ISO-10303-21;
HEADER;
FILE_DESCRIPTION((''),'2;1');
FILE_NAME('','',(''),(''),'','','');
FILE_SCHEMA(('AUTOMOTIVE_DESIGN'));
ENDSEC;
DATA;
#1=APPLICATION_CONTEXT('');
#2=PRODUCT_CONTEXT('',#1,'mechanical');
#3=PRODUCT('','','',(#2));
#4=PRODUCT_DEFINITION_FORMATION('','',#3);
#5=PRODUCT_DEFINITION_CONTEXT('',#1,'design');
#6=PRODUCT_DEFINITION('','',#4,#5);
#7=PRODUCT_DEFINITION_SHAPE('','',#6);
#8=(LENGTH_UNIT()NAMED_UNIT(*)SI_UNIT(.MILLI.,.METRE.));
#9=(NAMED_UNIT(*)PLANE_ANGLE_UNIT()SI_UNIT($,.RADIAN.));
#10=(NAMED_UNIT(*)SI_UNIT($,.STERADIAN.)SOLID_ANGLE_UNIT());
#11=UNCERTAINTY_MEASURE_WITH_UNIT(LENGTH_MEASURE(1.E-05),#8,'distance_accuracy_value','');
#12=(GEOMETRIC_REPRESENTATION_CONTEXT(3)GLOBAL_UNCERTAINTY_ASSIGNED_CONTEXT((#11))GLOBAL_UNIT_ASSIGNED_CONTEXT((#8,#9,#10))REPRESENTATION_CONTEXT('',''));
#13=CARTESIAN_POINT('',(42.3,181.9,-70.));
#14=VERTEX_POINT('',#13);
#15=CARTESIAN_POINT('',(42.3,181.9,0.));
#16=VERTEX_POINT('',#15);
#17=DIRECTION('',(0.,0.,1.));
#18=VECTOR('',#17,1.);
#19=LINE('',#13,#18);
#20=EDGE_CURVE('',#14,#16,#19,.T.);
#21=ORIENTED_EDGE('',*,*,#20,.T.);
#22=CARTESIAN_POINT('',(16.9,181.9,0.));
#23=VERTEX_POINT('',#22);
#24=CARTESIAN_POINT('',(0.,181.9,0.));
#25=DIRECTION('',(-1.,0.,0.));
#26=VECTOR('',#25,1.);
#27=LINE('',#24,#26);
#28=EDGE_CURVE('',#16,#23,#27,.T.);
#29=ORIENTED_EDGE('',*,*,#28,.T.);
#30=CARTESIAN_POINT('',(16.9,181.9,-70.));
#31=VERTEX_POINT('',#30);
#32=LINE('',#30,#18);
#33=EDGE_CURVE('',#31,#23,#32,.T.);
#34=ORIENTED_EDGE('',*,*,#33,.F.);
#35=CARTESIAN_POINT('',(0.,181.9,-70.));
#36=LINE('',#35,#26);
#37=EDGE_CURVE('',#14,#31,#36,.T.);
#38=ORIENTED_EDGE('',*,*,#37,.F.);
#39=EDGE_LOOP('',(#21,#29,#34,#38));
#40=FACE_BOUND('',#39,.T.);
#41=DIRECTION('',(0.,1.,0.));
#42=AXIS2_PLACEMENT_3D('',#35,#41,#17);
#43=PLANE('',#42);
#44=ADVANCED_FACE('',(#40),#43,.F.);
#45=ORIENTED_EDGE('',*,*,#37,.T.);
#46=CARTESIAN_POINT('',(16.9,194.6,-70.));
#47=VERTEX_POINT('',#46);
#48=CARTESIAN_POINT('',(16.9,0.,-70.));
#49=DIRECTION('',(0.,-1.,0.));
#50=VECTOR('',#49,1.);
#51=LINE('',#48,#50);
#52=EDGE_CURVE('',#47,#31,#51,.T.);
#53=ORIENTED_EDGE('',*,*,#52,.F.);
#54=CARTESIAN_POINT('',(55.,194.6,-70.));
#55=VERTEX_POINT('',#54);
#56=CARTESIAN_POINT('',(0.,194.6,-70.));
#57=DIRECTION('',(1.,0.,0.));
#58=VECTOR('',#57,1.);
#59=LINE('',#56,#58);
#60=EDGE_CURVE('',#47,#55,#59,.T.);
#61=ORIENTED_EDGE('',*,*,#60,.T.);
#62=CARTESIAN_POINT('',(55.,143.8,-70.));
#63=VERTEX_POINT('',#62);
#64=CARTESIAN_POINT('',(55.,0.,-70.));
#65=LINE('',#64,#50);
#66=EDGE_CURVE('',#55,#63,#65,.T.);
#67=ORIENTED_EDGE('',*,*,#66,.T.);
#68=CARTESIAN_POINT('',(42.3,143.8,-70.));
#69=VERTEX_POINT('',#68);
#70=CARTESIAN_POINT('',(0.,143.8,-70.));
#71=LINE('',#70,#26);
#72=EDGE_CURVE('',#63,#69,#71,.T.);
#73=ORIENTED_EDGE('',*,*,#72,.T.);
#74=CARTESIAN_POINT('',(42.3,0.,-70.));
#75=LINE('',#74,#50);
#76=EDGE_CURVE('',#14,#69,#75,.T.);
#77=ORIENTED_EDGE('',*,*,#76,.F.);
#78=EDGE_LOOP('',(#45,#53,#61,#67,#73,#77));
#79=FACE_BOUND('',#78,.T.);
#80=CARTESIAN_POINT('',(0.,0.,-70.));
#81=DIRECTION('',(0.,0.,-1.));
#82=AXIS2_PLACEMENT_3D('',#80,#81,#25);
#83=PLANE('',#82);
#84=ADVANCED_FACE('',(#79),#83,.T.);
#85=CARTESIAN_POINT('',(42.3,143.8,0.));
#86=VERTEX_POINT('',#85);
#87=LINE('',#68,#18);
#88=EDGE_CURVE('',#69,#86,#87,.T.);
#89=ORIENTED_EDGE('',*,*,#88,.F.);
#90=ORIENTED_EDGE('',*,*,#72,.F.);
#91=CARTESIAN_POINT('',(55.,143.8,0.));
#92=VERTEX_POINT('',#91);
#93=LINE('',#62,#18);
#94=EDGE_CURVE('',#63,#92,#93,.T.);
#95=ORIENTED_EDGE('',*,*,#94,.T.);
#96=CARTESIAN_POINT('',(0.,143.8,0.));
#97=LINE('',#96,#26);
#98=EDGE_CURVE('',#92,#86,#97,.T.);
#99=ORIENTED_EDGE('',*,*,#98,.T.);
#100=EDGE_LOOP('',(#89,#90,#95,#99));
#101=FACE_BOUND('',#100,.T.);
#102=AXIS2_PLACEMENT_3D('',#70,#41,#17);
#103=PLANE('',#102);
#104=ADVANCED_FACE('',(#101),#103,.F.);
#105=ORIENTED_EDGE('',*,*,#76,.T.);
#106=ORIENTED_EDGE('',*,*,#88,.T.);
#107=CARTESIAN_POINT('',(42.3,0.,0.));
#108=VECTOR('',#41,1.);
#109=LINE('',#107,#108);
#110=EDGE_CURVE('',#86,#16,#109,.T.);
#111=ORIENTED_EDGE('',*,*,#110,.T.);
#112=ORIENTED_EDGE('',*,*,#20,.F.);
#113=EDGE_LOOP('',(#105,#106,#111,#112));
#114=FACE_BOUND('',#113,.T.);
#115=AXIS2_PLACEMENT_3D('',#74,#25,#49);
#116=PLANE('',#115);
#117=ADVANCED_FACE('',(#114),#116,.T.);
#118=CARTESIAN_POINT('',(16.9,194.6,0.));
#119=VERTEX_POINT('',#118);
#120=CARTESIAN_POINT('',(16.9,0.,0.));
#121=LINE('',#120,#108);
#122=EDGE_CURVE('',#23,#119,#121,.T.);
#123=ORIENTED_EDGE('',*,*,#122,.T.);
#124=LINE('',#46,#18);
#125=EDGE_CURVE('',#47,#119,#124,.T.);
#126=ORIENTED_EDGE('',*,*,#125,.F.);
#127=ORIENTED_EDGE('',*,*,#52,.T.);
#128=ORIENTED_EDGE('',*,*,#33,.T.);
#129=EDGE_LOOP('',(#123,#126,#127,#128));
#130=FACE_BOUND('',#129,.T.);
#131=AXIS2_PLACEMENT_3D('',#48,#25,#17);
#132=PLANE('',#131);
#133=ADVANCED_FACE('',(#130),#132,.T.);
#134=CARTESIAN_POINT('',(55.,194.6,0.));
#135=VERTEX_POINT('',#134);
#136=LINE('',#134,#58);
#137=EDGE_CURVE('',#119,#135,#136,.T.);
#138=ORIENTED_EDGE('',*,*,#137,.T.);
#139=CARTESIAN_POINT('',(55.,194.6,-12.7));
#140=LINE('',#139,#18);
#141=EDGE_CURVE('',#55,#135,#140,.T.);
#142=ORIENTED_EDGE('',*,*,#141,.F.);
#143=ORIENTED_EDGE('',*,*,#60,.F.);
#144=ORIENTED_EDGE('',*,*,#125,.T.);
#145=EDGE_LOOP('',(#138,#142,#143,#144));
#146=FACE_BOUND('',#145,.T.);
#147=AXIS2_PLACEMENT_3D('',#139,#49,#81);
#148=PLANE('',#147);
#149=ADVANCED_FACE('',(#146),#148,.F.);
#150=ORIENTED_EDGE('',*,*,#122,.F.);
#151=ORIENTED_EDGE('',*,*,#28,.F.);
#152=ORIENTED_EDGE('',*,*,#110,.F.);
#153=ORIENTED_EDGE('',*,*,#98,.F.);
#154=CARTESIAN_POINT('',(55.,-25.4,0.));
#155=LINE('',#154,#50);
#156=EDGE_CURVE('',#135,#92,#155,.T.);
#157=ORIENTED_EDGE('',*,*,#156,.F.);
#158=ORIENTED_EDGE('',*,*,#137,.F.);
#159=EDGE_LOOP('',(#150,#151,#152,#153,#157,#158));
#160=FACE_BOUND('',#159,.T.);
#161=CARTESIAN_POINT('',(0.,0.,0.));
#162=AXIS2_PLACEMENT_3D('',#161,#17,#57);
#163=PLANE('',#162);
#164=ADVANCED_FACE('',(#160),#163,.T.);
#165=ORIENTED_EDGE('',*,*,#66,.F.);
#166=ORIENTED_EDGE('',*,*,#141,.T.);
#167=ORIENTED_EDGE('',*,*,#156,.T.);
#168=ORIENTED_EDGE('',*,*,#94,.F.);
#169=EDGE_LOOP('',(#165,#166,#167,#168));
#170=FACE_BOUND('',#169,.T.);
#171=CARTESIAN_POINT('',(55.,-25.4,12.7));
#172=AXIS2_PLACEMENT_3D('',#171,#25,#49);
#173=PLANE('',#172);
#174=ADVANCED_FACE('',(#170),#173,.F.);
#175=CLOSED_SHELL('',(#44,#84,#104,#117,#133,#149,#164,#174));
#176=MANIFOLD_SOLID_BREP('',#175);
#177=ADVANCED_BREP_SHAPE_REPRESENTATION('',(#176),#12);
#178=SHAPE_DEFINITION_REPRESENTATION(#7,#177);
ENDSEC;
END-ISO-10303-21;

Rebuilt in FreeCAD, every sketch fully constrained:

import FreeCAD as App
import Part
import Sketcher
from FreeCAD import Vector


def add_polygon(sketch, points):
    """Adds a closed chain of lines whose ends are joined by coincident constraints."""
    first, n = sketch.GeometryCount, len(points)
    for a, b in zip(points, points[1:] + points[:1]):
        sketch.addGeometry(Part.LineSegment(App.Vector(*a, 0), App.Vector(*b, 0)), False)
    for i in range(n):
        sketch.addConstraint(Sketcher.Constraint("Coincident", first + i, 2, first + (i + 1) % n, 1))

doc = App.newDocument("Part")
body = doc.addObject("PartDesign::Body", "Body")

sketch1 = body.newObject("Sketcher::SketchObject", "Sketch")
sketch1.AttachmentSupport = (doc.getObject("XY_Plane"), [""])
sketch1.MapMode = "FlatFace"
add_polygon(sketch1, [(-55, 25), (-55, -25), (55, -25), (55, 25)])
sketch1.addConstraint(Sketcher.Constraint("Vertical", 0))
sketch1.addConstraint(Sketcher.Constraint("Horizontal", 1))
sketch1.addConstraint(Sketcher.Constraint("Vertical", 2))
sketch1.addConstraint(Sketcher.Constraint("Horizontal", 3))
sketch1.addConstraint(Sketcher.Constraint("Symmetric", 0, 2, 2, 2, -1, 1))
sketch1.addConstraint(Sketcher.Constraint("DistanceX", 1, 1, 1, 2, 110.0))
sketch1.addConstraint(Sketcher.Constraint("DistanceY", 0, 2, 0, 1, 50.8))
pad1 = body.newObject("PartDesign::Pad", "Pad")
pad1.Profile = sketch1
pad1.Length = 12.7

sketch2 = body.newObject("Sketcher::SketchObject", "Sketch001")
sketch2.AttachmentSupport = (doc.getObject("XY_Plane"), [""])
sketch2.MapMode = "FlatFace"
add_polygon(sketch2, [(55, 195), (55, -25), (4, -25), (4, 195)])
sketch2.addConstraint(Sketcher.Constraint("Vertical", 0))
sketch2.addConstraint(Sketcher.Constraint("Horizontal", 1))
sketch2.addConstraint(Sketcher.Constraint("Vertical", 2))
sketch2.addConstraint(Sketcher.Constraint("Horizontal", 3))
sketch2.addConstraint(Sketcher.Constraint("DistanceY", 0, 2, 0, 1, 220.0))
sketch2.addConstraint(Sketcher.Constraint("DistanceX", 1, 2, 1, 1, 50.8))
sketch2.addConstraint(Sketcher.Constraint("DistanceX", -1, 1, 0, 2, 55.0))
sketch2.addConstraint(Sketcher.Constraint("DistanceY", 0, 2, -1, 1, 25.4))
pad2 = body.newObject("PartDesign::Pad", "Pad001")
pad2.Profile = sketch2
pad2.Length = 12.7
pad2.Reversed = True

sketch3 = body.newObject("Sketcher::SketchObject", "Sketch002")
sketch3.AttachmentSupport = (doc.getObject("XY_Plane"), [""])
sketch3.MapMode = "FlatFace"
sketch3.AttachmentOffset = App.Placement(Vector(0, 0, -12.7), App.Rotation())
add_polygon(sketch3, [(55, 195), (55, 144), (42, 144), (42, 182), (17, 182), (17, 195)])
sketch3.addConstraint(Sketcher.Constraint("Vertical", 0))
sketch3.addConstraint(Sketcher.Constraint("Horizontal", 1))
sketch3.addConstraint(Sketcher.Constraint("Vertical", 2))
sketch3.addConstraint(Sketcher.Constraint("Horizontal", 3))
sketch3.addConstraint(Sketcher.Constraint("Vertical", 4))
sketch3.addConstraint(Sketcher.Constraint("Horizontal", 5))
sketch3.addConstraint(Sketcher.Constraint("Equal", 5, 2))
sketch3.addConstraint(Sketcher.Constraint("Equal", 1, 4))
sketch3.addConstraint(Sketcher.Constraint("DistanceX", 1, 2, 1, 1, 12.7))
sketch3.addConstraint(Sketcher.Constraint("DistanceX", 3, 2, 3, 1, 25.4))
sketch3.addConstraint(Sketcher.Constraint("DistanceX", -1, 1, 0, 2, 55.0))
sketch3.addConstraint(Sketcher.Constraint("DistanceY", -1, 1, 0, 2, 143.8))
pad3 = body.newObject("PartDesign::Pad", "Pad002")
pad3.Profile = sketch3
pad3.Length = 57.3
pad3.Reversed = True

sketch4 = body.newObject("Sketcher::SketchObject", "Sketch003")
sketch4.AttachmentSupport = (doc.getObject("XY_Plane"), [""])
sketch4.MapMode = "FlatFace"
sketch4.AttachmentOffset = App.Placement(Vector(0, 0, -12.7), App.Rotation())
add_polygon(sketch4, [(55, 144), (55, -25), (-55, -25), (-55, 25), (4, 25), (4, 195), (17, 195), (17, 182), (42, 182), (42, 144)])
sketch4.addConstraint(Sketcher.Constraint("Vertical", 0))
sketch4.addConstraint(Sketcher.Constraint("Horizontal", 1))
sketch4.addConstraint(Sketcher.Constraint("Vertical", 2))
sketch4.addConstraint(Sketcher.Constraint("Horizontal", 3))
sketch4.addConstraint(Sketcher.Constraint("Vertical", 4))
sketch4.addConstraint(Sketcher.Constraint("Horizontal", 5))
sketch4.addConstraint(Sketcher.Constraint("Vertical", 6))
sketch4.addConstraint(Sketcher.Constraint("Horizontal", 7))
sketch4.addConstraint(Sketcher.Constraint("Vertical", 8))
sketch4.addConstraint(Sketcher.Constraint("Horizontal", 9))
sketch4.addConstraint(Sketcher.Constraint("Symmetric", 0, 2, 2, 2, -1, 1))
sketch4.addConstraint(Sketcher.Constraint("Equal", 5, 9))
sketch4.addConstraint(Sketcher.Constraint("Equal", 0, 4))
sketch4.addConstraint(Sketcher.Constraint("Equal", 9, 6))
sketch4.addConstraint(Sketcher.Constraint("DistanceX", 1, 2, 1, 1, 110.0))
sketch4.addConstraint(Sketcher.Constraint("DistanceX", 3, 1, 3, 2, 59.2))
sketch4.addConstraint(Sketcher.Constraint("DistanceX", 5, 1, 5, 2, 12.7))
sketch4.addConstraint(Sketcher.Constraint("DistanceY", 0, 2, 0, 1, 169.2))
sketch4.addConstraint(Sketcher.Constraint("DistanceY", 2, 1, 2, 2, 50.8))
pocket1 = body.newObject("PartDesign::Pocket", "Pocket")
pocket1.Profile = sketch4
pocket1.Type = "ThroughAll"
pocket1.Reversed = True

doc.recompute()
